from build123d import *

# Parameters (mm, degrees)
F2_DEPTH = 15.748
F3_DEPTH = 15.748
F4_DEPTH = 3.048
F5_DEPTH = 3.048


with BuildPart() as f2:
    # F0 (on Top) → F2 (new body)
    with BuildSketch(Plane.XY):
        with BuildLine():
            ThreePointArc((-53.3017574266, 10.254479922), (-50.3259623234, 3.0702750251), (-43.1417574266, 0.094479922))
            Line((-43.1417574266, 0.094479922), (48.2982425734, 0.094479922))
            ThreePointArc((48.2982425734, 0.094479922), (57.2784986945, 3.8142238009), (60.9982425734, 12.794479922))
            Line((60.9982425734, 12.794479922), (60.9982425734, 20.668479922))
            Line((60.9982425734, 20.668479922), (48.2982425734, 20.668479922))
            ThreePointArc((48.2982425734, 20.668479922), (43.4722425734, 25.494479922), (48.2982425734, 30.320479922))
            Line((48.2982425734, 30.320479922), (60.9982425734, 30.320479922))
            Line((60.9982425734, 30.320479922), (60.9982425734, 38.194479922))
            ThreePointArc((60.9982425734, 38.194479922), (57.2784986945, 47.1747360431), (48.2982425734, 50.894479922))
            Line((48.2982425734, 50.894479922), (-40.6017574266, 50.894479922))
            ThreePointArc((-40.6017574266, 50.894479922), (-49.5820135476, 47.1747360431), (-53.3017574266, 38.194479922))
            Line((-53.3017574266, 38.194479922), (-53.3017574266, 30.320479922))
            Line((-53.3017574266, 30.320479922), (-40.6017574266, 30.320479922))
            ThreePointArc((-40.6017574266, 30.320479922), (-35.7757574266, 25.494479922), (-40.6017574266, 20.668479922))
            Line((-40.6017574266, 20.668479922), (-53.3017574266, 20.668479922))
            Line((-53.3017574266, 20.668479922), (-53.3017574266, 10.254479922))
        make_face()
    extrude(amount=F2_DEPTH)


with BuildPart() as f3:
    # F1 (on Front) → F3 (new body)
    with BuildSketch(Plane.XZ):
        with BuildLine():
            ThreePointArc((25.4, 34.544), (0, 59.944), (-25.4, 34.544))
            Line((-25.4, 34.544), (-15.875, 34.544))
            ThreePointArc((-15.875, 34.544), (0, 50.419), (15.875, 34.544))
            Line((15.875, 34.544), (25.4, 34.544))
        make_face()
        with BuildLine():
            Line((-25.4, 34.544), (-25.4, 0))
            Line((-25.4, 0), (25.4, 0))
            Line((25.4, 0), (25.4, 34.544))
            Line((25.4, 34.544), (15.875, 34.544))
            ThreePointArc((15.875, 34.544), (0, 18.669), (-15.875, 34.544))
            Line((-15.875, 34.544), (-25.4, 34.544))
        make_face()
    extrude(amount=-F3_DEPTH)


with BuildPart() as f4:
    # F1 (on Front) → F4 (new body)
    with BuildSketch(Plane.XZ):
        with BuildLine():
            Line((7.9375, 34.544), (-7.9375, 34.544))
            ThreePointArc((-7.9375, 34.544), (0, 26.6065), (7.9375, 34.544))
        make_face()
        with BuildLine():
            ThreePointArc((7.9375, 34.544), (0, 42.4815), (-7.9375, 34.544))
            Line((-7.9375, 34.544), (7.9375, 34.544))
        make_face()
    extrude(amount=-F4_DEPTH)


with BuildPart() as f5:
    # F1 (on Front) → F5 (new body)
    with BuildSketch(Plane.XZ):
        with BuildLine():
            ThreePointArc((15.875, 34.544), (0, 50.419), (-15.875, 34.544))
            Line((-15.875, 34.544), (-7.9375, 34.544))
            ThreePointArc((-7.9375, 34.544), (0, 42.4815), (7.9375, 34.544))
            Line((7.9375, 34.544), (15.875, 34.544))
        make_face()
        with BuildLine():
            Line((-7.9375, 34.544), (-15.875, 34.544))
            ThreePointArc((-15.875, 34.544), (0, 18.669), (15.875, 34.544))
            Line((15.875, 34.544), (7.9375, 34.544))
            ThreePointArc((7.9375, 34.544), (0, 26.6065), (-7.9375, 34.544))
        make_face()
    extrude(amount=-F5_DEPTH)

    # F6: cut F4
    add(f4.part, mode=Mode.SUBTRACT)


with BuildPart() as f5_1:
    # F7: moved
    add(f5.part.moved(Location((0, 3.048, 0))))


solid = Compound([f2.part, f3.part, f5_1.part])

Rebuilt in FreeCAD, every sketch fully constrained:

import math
import FreeCAD as App
import Part
import Sketcher
Q = App.Units.Quantity

doc = App.newDocument("Part")
body = doc.addObject("PartDesign::Body", "Body")

sketch1 = body.newObject("Sketcher::SketchObject", "Sketch")
sketch1.AttachmentSupport = (doc.getObject("XY_Plane"), [""])
sketch1.MapMode = "FlatFace"
sketch1.addGeometry(Part.ArcOfCircle(Part.Circle(App.Vector(-43.141757, 10.25448, 0), App.Vector(0, 0, 1), 10.16), math.radians(180), math.radians(270)), False)
sketch1.addGeometry(Part.LineSegment(App.Vector(-43.141757, 0.09448, 0), App.Vector(48.298243, 0.09448, 0)), False)
sketch1.addGeometry(Part.ArcOfCircle(Part.Circle(App.Vector(48.298243, 12.79448, 0), App.Vector(0, 0, 1), 12.7), math.radians(-90), math.radians(0)), False)
sketch1.addGeometry(Part.LineSegment(App.Vector(60.998243, 12.79448, 0), App.Vector(60.998243, 20.66848, 0)), False)
sketch1.addGeometry(Part.LineSegment(App.Vector(60.998243, 20.66848, 0), App.Vector(48.298243, 20.66848, 0)), False)
sketch1.addGeometry(Part.ArcOfCircle(Part.Circle(App.Vector(48.298243, 25.49448, 0), App.Vector(0, 0, 1), 4.826), math.radians(90), math.radians(270)), False)
sketch1.addGeometry(Part.LineSegment(App.Vector(48.298243, 30.32048, 0), App.Vector(60.998243, 30.32048, 0)), False)
sketch1.addGeometry(Part.LineSegment(App.Vector(60.998243, 30.32048, 0), App.Vector(60.998243, 38.19448, 0)), False)
sketch1.addGeometry(Part.ArcOfCircle(Part.Circle(App.Vector(48.298243, 38.19448, 0), App.Vector(0, 0, 1), 12.7), math.radians(0), math.radians(90)), False)
sketch1.addGeometry(Part.LineSegment(App.Vector(48.298243, 50.89448, 0), App.Vector(-40.601757, 50.89448, 0)), False)
sketch1.addGeometry(Part.ArcOfCircle(Part.Circle(App.Vector(-40.601757, 38.19448, 0), App.Vector(0, 0, 1), 12.7), math.radians(90), math.radians(180)), False)
sketch1.addGeometry(Part.LineSegment(App.Vector(-53.301757, 38.19448, 0), App.Vector(-53.301757, 30.32048, 0)), False)
sketch1.addGeometry(Part.LineSegment(App.Vector(-53.301757, 30.32048, 0), App.Vector(-40.601757, 30.32048, 0)), False)
sketch1.addGeometry(Part.ArcOfCircle(Part.Circle(App.Vector(-40.601757, 25.49448, 0), App.Vector(0, 0, 1), 4.826), math.radians(-90), math.radians(90)), False)
sketch1.addGeometry(Part.LineSegment(App.Vector(-40.601757, 20.66848, 0), App.Vector(-53.301757, 20.66848, 0)), False)
sketch1.addGeometry(Part.LineSegment(App.Vector(-53.301757, 20.66848, 0), App.Vector(-53.301757, 10.25448, 0)), False)
sketch1.addConstraint(Sketcher.Constraint("Tangent", 0, 2, 1, 1))
sketch1.addConstraint(Sketcher.Constraint("Tangent", 1, 2, 2, 1))
sketch1.addConstraint(Sketcher.Constraint("Tangent", 2, 2, 3, 1))
sketch1.addConstraint(Sketcher.Constraint("Coincident", 3, 2, 4, 1))
sketch1.addConstraint(Sketcher.Constraint("Tangent", 4, 2, 5, 2))
sketch1.addConstraint(Sketcher.Constraint("Tangent", 5, 1, 6, 1))
sketch1.addConstraint(Sketcher.Constraint("Coincident", 6, 2, 7, 1))
sketch1.addConstraint(Sketcher.Constraint("Tangent", 7, 2, 8, 1))
sketch1.addConstraint(Sketcher.Constraint("Tangent", 8, 2, 9, 1))
sketch1.addConstraint(Sketcher.Constraint("Tangent", 9, 2, 10, 1))
sketch1.addConstraint(Sketcher.Constraint("Tangent", 10, 2, 11, 1))
sketch1.addConstraint(Sketcher.Constraint("Coincident", 11, 2, 12, 1))
sketch1.addConstraint(Sketcher.Constraint("Tangent", 12, 2, 13, 2))
sketch1.addConstraint(Sketcher.Constraint("Tangent", 13, 1, 14, 1))
sketch1.addConstraint(Sketcher.Constraint("Coincident", 14, 2, 15, 1))
sketch1.addConstraint(Sketcher.Constraint("Tangent", 15, 2, 0, 1))
sketch1.addConstraint(Sketcher.Constraint("Horizontal", 1))
sketch1.addConstraint(Sketcher.Constraint("Vertical", 3))
sketch1.addConstraint(Sketcher.Constraint("Horizontal", 4))
sketch1.addConstraint(Sketcher.Constraint("Horizontal", 6))
sketch1.addConstraint(Sketcher.Constraint("Vertical", 7))
sketch1.addConstraint(Sketcher.Constraint("Horizontal", 9))
sketch1.addConstraint(Sketcher.Constraint("Vertical", 11))
sketch1.addConstraint(Sketcher.Constraint("Horizontal", 12))
sketch1.addConstraint(Sketcher.Constraint("Horizontal", 14))
sketch1.addConstraint(Sketcher.Constraint("Vertical", 15))
sketch1.addConstraint(Sketcher.Constraint("Equal", 2, 8))
sketch1.addConstraint(Sketcher.Constraint("Equal", 8, 10))
sketch1.addConstraint(Sketcher.Constraint("Equal", 5, 13))
sketch1.addConstraint(Sketcher.Constraint("Horizontal", 5, 3, 13, 3))
sketch1.addConstraint(Sketcher.Constraint("Vertical", 2, 3, 5, 3))
sketch1.addConstraint(Sketcher.Constraint("Vertical", 5, 3, 8, 3))
sketch1.addConstraint(Sketcher.Constraint("Vertical", 10, 3, 13, 3))
sketch1.addConstraint(Sketcher.Constraint("Vertical", 11, 2, 14, 2))
sketch1.addConstraint(Sketcher.Constraint("Equal", 3, 7))
sketch1.addConstraint(Sketcher.Constraint("Radius", 0, Q("0.4 in")))
sketch1.addConstraint(Sketcher.Constraint("Radius", 2, Q("0.5 in")))
sketch1.addConstraint(Sketcher.Constraint("Radius", 5, Q("0.19 in")))
sketch1.addConstraint(Sketcher.Constraint("DistanceX", 1, 1, 1, 2, Q("3.6 in")))
sketch1.addConstraint(Sketcher.Constraint("DistanceY", 2, 3, 8, 3, Q("1 in")))
sketch1.addConstraint(Sketcher.Constraint("DistanceY", -1, 1, 0, 3, 10.25448))
sketch1.addConstraint(Sketcher.Constraint("DistanceX", 0, 3, -1, 1, 43.141757))
pad1 = body.newObject("PartDesign::Pad", "Pad")
pad1.Profile = sketch1
pad1.Length = Q("0.62 in")
body2 = doc.addObject("PartDesign::Body", "Body001")

sketch2 = body2.newObject("Sketcher::SketchObject", "Sketch001")
sketch2.AttachmentSupport = (doc.getObject("XZ_Plane001"), [""])
sketch2.MapMode = "FlatFace"
sketch2.addGeometry(Part.ArcOfCircle(Part.Circle(App.Vector(0, 34.544, 0), App.Vector(0, 0, 1), 25.4), math.radians(0), math.radians(180)), False)
sketch2.addGeometry(Part.LineSegment(App.Vector(-25.4, 34.544, 0), App.Vector(-25.4, 0, 0)), False)
sketch2.addGeometry(Part.LineSegment(App.Vector(-25.4, 0, 0), App.Vector(25.4, 0, 0)), False)
sketch2.addGeometry(Part.LineSegment(App.Vector(25.4, 0, 0), App.Vector(25.4, 34.544, 0)), False)
sketch2.addGeometry(Part.Circle(App.Vector(0, 34.544, 0), App.Vector(0, 0, 1), 15.875), False)
sketch2.addConstraint(Sketcher.Constraint("Tangent", 0, 2, 1, 1))
sketch2.addConstraint(Sketcher.Constraint("Coincident", 1, 2, 2, 1))
sketch2.addConstraint(Sketcher.Constraint("Coincident", 2, 2, 3, 1))
sketch2.addConstraint(Sketcher.Constraint("Tangent", 3, 2, 0, 1))
sketch2.addConstraint(Sketcher.Constraint("Vertical", 1))
sketch2.addConstraint(Sketcher.Constraint("Horizontal", 2))
sketch2.addConstraint(Sketcher.Constraint("Vertical", 3))
sketch2.addConstraint(Sketcher.Constraint("Coincident", 4, 3, 0, 3))
sketch2.addConstraint(Sketcher.Constraint("Symmetric", 1, 2, 2, 2, -1, 1))
sketch2.addConstraint(Sketcher.Constraint("Radius", 0, Q("1 in")))
sketch2.addConstraint(Sketcher.Constraint("Diameter", 4, Q("1.25 in")))
sketch2.addConstraint(Sketcher.Constraint("DistanceY", 1, 2, 1, 1, Q("1.36 in")))
pad2 = body2.newObject("PartDesign::Pad", "Pad001")
pad2.Profile = sketch2
pad2.Length = Q("0.62 in")
pad2.Reversed = True
body3 = doc.addObject("PartDesign::Body", "Body002")

sketch3 = body3.newObject("Sketcher::SketchObject", "Sketch002")
sketch3.AttachmentSupport = (doc.getObject("XZ_Plane002"), [""])
sketch3.MapMode = "FlatFace"
sketch3.addGeometry(Part.Circle(App.Vector(0, 34.544, 0), App.Vector(0, 0, 1), 7.9375), False)
sketch3.addConstraint(Sketcher.Constraint("PointOnObject", 0, 3, -2))
sketch3.addConstraint(Sketcher.Constraint("Diameter", 0, Q("0.625 in")))
sketch3.addConstraint(Sketcher.Constraint("DistanceY", -1, 1, 0, 3, Q("1.36 in")))
pad3 = body3.newObject("PartDesign::Pad", "Pad002")
pad3.Profile = sketch3
pad3.Length = Q("0.12 in")
pad3.Reversed = True
body4 = doc.addObject("PartDesign::Body", "Body003")

sketch4 = body4.newObject("Sketcher::SketchObject", "Sketch003")
sketch4.AttachmentSupport = (doc.getObject("XZ_Plane003"), [""])
sketch4.MapMode = "FlatFace"
sketch4.addGeometry(Part.Circle(App.Vector(0, 34.544, 0), App.Vector(0, 0, 1), 15.875), False)
sketch4.addGeometry(Part.Circle(App.Vector(0, 34.544, 0), App.Vector(0, 0, 1), 7.9375), False)
sketch4.addConstraint(Sketcher.Constraint("Coincident", 1, 3, 0, 3))
sketch4.addConstraint(Sketcher.Constraint("PointOnObject", 0, 3, -2))
sketch4.addConstraint(Sketcher.Constraint("Diameter", 0, Q("1.25 in")))
sketch4.addConstraint(Sketcher.Constraint("Diameter", 1, Q("0.625 in")))
sketch4.addConstraint(Sketcher.Constraint("DistanceY", -1, 1, 0, 3, Q("1.36 in")))
pad4 = body4.newObject("PartDesign::Pad", "Pad003")
pad4.Profile = sketch4
pad4.Length = Q("0.12 in")
pad4.Reversed = True
doc.recompute()

boolean = body4.newObject("PartDesign::Boolean", "Boolean")
boolean.Type = "Cut"
boolean.addObjects([body3])
body5 = doc.addObject("PartDesign::Body", "Body004")
doc.recompute()

body4.Placement = App.Placement(App.Vector(0, 3.048, 0), App.Rotation(App.Vector(0, 0, 1), 0))
boolean2 = body5.newObject("PartDesign::Boolean", "Boolean001")
boolean2.Type = "Fuse"
boolean2.addObjects([body4])

doc.recompute()
